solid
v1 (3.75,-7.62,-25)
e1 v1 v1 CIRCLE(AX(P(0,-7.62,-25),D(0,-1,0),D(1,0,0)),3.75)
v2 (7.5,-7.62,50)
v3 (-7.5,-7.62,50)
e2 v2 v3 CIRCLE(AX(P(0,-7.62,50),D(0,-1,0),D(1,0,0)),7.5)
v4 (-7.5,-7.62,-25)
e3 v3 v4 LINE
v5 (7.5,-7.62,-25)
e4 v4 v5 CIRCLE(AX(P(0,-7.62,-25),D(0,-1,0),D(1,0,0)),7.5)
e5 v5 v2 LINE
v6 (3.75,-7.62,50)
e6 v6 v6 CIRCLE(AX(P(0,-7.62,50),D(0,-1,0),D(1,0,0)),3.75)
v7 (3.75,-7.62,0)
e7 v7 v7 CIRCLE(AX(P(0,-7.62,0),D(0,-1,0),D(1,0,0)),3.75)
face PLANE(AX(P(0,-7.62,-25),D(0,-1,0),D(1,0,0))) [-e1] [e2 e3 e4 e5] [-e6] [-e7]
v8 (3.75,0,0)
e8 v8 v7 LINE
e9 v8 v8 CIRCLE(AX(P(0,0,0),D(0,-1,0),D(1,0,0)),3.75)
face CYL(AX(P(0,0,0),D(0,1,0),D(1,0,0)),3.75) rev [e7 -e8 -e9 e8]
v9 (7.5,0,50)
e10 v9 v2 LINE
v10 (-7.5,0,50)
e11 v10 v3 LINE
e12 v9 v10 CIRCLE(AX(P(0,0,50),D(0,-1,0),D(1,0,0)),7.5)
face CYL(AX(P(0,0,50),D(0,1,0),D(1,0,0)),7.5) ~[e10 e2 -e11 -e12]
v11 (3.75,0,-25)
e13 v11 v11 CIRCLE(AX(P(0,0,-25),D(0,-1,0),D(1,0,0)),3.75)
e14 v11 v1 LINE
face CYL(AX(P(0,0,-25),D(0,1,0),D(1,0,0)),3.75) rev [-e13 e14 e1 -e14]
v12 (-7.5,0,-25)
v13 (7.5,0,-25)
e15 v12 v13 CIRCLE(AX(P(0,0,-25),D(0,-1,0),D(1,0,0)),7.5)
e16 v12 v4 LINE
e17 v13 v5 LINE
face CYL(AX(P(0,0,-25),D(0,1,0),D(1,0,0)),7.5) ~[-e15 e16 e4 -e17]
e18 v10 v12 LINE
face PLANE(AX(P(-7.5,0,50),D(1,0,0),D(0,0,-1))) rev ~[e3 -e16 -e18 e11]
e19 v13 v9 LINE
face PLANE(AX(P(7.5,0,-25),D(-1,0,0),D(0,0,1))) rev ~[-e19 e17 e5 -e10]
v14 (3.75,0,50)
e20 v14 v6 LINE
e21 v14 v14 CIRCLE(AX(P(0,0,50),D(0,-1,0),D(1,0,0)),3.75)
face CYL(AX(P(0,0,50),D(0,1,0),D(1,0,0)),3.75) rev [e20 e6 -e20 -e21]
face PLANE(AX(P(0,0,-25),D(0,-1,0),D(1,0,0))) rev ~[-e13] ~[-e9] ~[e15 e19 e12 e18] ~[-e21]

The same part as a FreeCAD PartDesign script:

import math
import FreeCAD as App
import Part
import Sketcher
from FreeCAD import Vector
Q = App.Units.Quantity

doc = App.newDocument("Part")
body = doc.addObject("PartDesign::Body", "Body")

# Sketch on XZ plane
sketch1 = body.newObject("Sketcher::SketchObject", "Sketch")
sketch1.AttachmentSupport = (doc.getObject("XZ_Plane"), [""])
sketch1.MapMode = "FlatFace"
sketch1.addGeometry(Part.ArcOfCircle(Part.Circle(Vector(0, -25, 0), Vector(0, 0, 1), 7.5), math.radians(180), math.radians(360)), False)
sketch1.addGeometry(Part.LineSegment(Vector(7.5, -25, 0), Vector(7.5, 50, 0)), False)
sketch1.addGeometry(Part.ArcOfCircle(Part.Circle(Vector(0, 50, 0), Vector(0, 0, 1), 7.5), math.radians(0), math.radians(180)), False)
sketch1.addGeometry(Part.LineSegment(Vector(-7.5, 50, 0), Vector(-7.5, -25, 0)), False)
sketch1.addGeometry(Part.Circle(Vector(0, -25, 0), Vector(0, 0, 1), 3.8), False)
sketch1.addGeometry(Part.Circle(Vector(0, 0, 0), Vector(0, 0, 1), 3.8), False)
sketch1.addGeometry(Part.Circle(Vector(0, 50, 0), Vector(0, 0, 1), 3.8), False)
sketch1.addConstraint(Sketcher.Constraint("Tangent", 0, 2, 1, 1))
sketch1.addConstraint(Sketcher.Constraint("Tangent", 1, 2, 2, 1))
sketch1.addConstraint(Sketcher.Constraint("Tangent", 2, 2, 3, 1))
sketch1.addConstraint(Sketcher.Constraint("Tangent", 3, 2, 0, 1))
sketch1.addConstraint(Sketcher.Constraint("Vertical", 1))
sketch1.addConstraint(Sketcher.Constraint("Vertical", 3))
sketch1.addConstraint(Sketcher.Constraint("Coincident", 5, 3, -1, 1))
sketch1.addConstraint(Sketcher.Constraint("Coincident", 4, 3, 0, 3))
sketch1.addConstraint(Sketcher.Constraint("Coincident", 6, 3, 2, 3))
sketch1.addConstraint(Sketcher.Constraint("Equal", 4, 5))
sketch1.addConstraint(Sketcher.Constraint("Equal", 5, 6))
sketch1.addConstraint(Sketcher.Constraint("PointOnObject", 0, 3, -2))
sketch1.addConstraint(Sketcher.Constraint("Diameter", 4, Q("7.5 mm")))
sketch1.addConstraint(Sketcher.Constraint("Radius", 0, Q("7.5 mm")))
sketch1.addConstraint(Sketcher.Constraint("DistanceY", 1, 1, 1, 2, Q("75 mm")))
sketch1.addConstraint(Sketcher.Constraint("DistanceY", 0, 3, -1, 1, Q("25 mm")))
pad1 = body.newObject("PartDesign::Pad", "Pad")
pad1.Profile = sketch1
pad1.Length = 7.62

doc.recompute()
